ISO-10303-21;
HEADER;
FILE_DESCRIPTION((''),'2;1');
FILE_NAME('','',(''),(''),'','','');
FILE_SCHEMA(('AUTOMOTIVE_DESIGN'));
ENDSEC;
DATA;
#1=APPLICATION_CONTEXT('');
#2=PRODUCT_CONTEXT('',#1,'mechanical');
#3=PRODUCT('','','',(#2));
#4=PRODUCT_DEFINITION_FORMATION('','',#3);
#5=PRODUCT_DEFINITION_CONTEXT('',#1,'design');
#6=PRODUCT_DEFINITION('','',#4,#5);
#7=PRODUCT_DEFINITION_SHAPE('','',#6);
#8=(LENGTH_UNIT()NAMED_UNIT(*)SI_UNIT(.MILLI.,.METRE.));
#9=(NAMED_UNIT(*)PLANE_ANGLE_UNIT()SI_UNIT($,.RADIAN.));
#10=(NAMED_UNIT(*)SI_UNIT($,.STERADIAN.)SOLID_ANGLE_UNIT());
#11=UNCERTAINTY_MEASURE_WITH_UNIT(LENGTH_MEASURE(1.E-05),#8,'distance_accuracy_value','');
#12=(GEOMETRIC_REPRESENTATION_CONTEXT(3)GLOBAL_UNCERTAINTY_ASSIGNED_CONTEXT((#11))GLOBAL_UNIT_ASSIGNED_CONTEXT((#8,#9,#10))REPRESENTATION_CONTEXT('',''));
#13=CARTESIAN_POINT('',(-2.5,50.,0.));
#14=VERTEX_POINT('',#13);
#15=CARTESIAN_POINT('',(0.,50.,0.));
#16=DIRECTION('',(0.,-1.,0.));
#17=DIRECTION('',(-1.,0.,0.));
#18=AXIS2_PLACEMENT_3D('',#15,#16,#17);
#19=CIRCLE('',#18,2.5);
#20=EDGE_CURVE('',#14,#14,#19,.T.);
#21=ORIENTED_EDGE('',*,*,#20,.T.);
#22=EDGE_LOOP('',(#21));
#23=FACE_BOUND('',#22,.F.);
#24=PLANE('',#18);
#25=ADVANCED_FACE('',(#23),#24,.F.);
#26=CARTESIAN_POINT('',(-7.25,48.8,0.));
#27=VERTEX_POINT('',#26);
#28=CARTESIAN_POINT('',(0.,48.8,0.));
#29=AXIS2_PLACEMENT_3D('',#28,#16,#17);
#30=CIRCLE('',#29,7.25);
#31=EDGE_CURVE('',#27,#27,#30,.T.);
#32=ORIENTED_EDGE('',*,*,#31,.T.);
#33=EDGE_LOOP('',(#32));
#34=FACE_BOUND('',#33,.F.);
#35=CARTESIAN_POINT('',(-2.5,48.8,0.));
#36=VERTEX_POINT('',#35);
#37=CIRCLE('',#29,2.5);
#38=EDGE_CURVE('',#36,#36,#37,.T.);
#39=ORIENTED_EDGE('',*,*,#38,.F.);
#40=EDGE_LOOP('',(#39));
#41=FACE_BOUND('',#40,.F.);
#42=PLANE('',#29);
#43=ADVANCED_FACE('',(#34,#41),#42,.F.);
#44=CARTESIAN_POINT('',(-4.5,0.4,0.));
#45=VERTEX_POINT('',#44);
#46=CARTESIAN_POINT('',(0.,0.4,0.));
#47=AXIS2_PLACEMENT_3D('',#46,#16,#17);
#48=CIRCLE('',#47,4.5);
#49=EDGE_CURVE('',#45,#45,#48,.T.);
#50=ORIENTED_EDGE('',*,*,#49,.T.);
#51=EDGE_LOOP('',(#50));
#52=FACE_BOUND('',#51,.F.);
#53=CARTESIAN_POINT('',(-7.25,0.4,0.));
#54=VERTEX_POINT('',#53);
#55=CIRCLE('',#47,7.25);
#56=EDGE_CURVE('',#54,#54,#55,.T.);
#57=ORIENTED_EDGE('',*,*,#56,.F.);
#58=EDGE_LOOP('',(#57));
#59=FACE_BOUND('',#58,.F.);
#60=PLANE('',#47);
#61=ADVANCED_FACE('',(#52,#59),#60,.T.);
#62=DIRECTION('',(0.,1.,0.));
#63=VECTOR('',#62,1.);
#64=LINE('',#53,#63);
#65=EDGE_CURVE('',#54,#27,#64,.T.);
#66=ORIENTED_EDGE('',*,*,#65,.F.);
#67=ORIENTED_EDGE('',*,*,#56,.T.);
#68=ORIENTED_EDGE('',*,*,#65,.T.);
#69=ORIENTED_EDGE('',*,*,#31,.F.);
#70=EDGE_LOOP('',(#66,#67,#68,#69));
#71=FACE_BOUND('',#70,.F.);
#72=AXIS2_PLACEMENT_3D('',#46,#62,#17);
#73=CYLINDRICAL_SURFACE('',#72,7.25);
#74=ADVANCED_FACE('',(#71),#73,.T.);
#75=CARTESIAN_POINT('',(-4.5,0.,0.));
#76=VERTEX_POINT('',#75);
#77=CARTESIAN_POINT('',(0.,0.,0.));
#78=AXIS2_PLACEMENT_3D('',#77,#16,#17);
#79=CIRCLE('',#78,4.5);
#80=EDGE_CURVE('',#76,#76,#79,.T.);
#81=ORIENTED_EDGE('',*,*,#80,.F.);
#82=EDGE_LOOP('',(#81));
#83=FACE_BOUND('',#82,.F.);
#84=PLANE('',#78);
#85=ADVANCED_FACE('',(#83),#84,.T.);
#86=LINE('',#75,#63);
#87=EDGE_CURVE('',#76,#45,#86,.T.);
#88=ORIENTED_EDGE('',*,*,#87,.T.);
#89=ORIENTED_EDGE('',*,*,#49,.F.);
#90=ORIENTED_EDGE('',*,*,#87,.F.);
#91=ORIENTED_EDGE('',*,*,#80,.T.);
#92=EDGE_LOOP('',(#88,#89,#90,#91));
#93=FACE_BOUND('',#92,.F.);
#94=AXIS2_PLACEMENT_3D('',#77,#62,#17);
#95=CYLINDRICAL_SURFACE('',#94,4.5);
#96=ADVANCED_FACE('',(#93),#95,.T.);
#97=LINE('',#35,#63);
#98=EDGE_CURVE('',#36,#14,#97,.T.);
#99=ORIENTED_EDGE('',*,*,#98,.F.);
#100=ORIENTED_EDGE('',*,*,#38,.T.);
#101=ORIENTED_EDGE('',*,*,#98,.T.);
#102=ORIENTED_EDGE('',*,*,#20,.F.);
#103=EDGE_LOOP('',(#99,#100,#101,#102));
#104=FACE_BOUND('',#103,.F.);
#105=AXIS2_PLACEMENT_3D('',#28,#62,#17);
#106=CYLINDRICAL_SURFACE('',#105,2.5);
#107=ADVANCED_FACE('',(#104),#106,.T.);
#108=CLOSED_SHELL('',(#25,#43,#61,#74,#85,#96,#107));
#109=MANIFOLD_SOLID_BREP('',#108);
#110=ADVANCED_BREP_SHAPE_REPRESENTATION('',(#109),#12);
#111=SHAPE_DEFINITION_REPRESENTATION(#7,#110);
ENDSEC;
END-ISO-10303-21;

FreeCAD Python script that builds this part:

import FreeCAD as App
import Part
import Sketcher

V = App.Vector


def add_polygon(sketch, points):
    """Adds a closed chain of lines whose ends are joined by coincident constraints."""
    first, n = sketch.GeometryCount, len(points)
    for a, b in zip(points, points[1:] + points[:1]):
        sketch.addGeometry(Part.LineSegment(App.Vector(*a, 0), App.Vector(*b, 0)), False)
    for i in range(n):
        sketch.addConstraint(Sketcher.Constraint("Coincident", first + i, 2, first + (i + 1) % n, 1))

doc = App.newDocument("Part")
body = doc.addObject("PartDesign::Body", "Body")

sketch1 = doc.addObject("Sketcher::SketchObject", "Sketch")
body.addObject(sketch1)
sketch1.AttachmentSupport = (doc.XY_Plane, [""])
sketch1.MapMode = "FlatFace"
add_polygon(sketch1, [(-4.5, 0), (0, 0), (0, 50), (-2.5, 50), (-2.5, 48.8), (-7.25, 48.8), (-7.25, 0.4), (-4.5, 0.4)])
sketch1.addConstraint([
    Sketcher.Constraint("Horizontal", 0),
    Sketcher.Constraint("Vertical", 1),
    Sketcher.Constraint("Horizontal", 2),
    Sketcher.Constraint("Vertical", 3),
    Sketcher.Constraint("Horizontal", 4),
    Sketcher.Constraint("Vertical", 5),
    Sketcher.Constraint("Horizontal", 6),
    Sketcher.Constraint("Vertical", 7),
    Sketcher.Constraint("Coincident", 0, 2, -1, 1),
    Sketcher.Constraint("DistanceY", 1, 1, 1, 2, 50.0),
    Sketcher.Constraint("DistanceX", 0, 1, 0, 2, 4.5),
    Sketcher.Constraint("DistanceX", 2, 2, 2, 1, 2.5),
    Sketcher.Constraint("DistanceY", 3, 2, 3, 1, 1.2),
    Sketcher.Constraint("DistanceY", 7, 2, 7, 1, 0.4),
    Sketcher.Constraint("DistanceX", 4, 2, -1, 1, 7.25),
])
revolution = doc.addObject("PartDesign::Revolution", "Revolution")
body.addObject(revolution)
revolution.Profile = sketch1
revolution.ReferenceAxis = (sketch1, ["V_Axis"])
revolution.Angle = 360

doc.recompute()
